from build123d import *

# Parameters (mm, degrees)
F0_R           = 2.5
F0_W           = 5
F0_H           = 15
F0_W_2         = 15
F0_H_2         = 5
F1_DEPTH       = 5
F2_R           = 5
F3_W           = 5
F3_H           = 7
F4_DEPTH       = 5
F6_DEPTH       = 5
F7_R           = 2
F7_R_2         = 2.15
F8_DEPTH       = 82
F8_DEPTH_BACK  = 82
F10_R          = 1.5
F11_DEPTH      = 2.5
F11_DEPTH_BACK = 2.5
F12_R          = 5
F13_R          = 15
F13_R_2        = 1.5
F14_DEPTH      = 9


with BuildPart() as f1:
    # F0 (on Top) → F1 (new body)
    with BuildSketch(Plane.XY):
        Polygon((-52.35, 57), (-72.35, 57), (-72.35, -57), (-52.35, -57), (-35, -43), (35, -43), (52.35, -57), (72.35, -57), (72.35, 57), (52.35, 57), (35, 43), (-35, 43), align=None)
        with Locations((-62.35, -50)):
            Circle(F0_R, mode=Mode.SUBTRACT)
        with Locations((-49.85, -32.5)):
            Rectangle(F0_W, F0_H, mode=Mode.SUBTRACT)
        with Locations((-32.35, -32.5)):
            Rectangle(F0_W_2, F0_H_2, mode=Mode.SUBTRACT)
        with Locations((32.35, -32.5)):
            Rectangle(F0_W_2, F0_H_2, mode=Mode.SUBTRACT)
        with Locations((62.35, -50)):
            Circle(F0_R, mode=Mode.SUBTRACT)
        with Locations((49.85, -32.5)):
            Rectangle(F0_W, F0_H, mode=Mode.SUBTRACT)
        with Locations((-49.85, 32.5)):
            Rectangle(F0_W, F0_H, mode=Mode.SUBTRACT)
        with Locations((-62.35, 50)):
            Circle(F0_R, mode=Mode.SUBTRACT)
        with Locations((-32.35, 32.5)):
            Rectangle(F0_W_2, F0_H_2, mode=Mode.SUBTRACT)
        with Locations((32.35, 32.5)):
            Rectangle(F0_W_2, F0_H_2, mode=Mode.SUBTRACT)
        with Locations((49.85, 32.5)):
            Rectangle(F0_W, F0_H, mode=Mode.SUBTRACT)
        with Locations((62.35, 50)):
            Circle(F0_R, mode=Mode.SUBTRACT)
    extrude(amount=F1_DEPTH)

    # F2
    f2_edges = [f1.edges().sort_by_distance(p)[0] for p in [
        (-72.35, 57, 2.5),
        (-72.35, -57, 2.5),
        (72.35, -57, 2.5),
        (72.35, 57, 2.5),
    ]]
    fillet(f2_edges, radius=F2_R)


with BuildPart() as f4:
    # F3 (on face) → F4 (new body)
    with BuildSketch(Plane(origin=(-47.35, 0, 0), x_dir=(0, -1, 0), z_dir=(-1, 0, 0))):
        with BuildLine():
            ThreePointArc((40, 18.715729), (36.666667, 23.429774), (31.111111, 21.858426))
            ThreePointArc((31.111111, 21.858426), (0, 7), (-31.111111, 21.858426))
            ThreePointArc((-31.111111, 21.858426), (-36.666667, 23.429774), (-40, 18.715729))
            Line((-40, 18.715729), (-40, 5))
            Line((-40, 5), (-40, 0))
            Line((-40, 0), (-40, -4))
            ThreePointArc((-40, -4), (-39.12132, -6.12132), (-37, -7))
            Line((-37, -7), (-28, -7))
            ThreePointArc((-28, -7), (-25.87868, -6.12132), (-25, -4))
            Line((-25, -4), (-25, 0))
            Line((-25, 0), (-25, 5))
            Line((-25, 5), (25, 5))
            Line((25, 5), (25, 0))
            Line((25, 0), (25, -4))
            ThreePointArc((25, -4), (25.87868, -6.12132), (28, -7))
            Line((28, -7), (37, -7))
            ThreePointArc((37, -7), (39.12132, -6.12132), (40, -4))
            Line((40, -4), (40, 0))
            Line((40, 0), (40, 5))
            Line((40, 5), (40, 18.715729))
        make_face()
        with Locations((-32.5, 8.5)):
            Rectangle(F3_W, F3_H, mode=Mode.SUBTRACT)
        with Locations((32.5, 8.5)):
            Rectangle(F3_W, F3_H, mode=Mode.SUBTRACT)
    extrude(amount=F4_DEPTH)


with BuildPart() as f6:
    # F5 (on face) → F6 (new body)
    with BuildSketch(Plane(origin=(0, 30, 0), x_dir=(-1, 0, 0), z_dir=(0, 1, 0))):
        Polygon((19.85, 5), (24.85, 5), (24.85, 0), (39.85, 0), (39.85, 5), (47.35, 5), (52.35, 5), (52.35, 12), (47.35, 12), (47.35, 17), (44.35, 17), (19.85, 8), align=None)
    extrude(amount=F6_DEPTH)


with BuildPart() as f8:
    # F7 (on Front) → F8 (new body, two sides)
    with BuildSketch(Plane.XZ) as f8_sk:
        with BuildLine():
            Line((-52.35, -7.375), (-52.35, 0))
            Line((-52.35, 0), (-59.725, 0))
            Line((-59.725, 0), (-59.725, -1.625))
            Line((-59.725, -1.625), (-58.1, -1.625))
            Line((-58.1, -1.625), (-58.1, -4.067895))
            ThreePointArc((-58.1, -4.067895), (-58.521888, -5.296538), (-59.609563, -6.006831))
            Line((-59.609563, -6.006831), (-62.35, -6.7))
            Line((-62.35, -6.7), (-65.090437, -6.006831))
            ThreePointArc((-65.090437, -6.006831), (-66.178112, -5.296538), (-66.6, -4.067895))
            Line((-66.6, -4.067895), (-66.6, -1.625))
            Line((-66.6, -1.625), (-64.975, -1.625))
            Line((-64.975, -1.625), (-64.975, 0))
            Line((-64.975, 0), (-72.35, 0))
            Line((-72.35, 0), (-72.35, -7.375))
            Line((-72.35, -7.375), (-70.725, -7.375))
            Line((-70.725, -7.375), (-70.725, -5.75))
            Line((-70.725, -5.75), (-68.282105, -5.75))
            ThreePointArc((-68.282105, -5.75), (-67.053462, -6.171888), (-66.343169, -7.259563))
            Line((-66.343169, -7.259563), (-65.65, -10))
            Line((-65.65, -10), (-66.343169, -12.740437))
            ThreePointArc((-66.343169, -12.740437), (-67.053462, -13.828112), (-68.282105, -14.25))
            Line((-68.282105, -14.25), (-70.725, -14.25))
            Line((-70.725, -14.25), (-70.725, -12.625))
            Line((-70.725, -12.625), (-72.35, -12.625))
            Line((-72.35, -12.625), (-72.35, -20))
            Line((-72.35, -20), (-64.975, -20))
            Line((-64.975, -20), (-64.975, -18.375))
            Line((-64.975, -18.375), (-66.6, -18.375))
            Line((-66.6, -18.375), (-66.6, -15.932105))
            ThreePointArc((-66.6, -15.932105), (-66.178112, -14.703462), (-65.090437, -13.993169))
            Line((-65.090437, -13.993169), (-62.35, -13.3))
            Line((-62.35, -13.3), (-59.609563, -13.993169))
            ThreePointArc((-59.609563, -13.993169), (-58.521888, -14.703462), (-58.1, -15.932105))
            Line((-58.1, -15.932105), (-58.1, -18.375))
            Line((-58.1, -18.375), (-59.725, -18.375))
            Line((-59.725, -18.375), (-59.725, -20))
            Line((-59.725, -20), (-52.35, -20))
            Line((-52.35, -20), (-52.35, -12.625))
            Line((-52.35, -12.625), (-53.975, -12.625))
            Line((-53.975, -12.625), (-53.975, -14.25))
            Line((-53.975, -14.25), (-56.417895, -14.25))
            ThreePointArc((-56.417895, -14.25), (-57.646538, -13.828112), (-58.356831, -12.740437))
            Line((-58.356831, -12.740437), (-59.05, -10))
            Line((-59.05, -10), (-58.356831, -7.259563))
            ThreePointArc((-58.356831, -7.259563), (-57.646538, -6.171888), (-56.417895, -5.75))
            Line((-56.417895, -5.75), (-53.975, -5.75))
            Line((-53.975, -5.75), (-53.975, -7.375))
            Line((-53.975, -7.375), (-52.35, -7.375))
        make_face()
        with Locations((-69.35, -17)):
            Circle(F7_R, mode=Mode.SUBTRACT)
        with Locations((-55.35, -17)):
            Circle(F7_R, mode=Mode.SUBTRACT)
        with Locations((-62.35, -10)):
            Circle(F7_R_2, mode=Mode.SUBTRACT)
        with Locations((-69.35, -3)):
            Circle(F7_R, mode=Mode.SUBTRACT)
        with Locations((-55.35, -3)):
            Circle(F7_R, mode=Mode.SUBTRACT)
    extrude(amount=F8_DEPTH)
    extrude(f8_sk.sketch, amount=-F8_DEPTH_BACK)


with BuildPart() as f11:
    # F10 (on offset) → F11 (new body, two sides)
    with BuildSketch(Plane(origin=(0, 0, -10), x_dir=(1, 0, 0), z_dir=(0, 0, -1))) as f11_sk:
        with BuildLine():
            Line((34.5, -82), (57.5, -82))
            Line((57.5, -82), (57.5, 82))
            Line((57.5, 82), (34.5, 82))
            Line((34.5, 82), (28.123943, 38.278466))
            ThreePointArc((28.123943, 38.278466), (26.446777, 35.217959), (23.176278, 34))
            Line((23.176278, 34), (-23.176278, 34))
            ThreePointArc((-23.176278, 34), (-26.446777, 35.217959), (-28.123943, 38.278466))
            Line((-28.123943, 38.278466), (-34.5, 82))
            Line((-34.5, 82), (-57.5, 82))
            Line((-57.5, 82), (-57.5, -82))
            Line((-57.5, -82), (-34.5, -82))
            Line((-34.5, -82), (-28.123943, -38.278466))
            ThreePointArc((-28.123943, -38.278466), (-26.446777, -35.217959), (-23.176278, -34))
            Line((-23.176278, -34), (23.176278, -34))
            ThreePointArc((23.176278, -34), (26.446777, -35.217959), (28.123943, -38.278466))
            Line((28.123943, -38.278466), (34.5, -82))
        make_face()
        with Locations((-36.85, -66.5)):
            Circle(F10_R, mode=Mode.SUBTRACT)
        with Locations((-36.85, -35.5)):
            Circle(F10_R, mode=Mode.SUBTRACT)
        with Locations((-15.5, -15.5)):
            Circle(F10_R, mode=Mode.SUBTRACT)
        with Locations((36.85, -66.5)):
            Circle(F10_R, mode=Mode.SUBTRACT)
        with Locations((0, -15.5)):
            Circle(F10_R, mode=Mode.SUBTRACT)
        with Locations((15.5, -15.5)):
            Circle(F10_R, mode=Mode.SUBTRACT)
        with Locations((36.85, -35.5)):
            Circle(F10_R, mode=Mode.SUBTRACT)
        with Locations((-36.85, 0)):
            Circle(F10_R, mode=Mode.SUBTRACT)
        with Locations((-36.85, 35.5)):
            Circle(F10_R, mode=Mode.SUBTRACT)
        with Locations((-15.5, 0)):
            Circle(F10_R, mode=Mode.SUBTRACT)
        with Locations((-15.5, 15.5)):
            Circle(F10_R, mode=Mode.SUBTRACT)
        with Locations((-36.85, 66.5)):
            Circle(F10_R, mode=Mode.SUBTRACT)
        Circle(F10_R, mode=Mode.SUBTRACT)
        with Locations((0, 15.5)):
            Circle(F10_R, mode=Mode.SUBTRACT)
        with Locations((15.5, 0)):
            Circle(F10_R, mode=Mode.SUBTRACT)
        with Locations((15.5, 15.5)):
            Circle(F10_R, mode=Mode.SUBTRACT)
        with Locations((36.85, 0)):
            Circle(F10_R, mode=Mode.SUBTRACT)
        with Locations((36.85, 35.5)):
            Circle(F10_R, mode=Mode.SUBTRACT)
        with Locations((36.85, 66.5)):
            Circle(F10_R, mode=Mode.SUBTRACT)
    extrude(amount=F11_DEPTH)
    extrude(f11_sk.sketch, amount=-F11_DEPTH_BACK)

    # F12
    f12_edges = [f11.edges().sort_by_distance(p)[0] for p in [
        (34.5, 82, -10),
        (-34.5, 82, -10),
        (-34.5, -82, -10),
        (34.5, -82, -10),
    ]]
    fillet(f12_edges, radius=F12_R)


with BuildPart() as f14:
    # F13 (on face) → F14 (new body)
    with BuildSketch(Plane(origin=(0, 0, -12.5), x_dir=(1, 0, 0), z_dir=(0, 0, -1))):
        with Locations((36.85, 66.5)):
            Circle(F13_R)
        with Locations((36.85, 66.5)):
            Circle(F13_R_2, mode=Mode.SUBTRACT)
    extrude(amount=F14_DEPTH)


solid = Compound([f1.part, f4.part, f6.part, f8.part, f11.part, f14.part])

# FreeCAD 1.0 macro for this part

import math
import FreeCAD as App
import Part
import Sketcher

V = App.Vector
Q = App.Units.Quantity


def edges_at(feature, points):
    """Names of the edges that pass closest to the given points."""
    edges = feature.Shape.Edges
    near = lambda p: min(range(len(edges)), key=lambda i: edges[i].distToShape(Part.Vertex(*p))[0])
    return sorted({f"Edge{near(p) + 1}" for p in points})


def add_polygon(sketch, points):
    """Adds a closed chain of lines whose ends are joined by coincident constraints."""
    first, n = sketch.GeometryCount, len(points)
    for a, b in zip(points, points[1:] + points[:1]):
        sketch.addGeometry(Part.LineSegment(App.Vector(*a, 0), App.Vector(*b, 0)), False)
    for i in range(n):
        sketch.addConstraint(Sketcher.Constraint("Coincident", first + i, 2, first + (i + 1) % n, 1))

doc = App.newDocument("Part")
body = doc.addObject("PartDesign::Body", "Body")

sketch1 = body.newObject("Sketcher::SketchObject", "Sketch")
sketch1.AttachmentSupport = (doc.getObject("XY_Plane"), [""])
sketch1.MapMode = "FlatFace"
add_polygon(sketch1, [(-52.4, 57), (-72.3, 57), (-72.3, -57), (-52.4, -57), (-35, -43), (35, -43), (52.4, -57), (72.3, -57), (72.3, 57), (52.4, 57), (35, 43), (-35, 43)])
sketch1.addGeometry(Part.Circle(V(-62.4, -50, 0), V(0, 0, 1), 2.5), False)
add_polygon(sketch1, [(-47.4, -40), (-52.4, -40), (-52.4, -25), (-47.4, -25)])
add_polygon(sketch1, [(-24.9, -35), (-39.9, -35), (-39.9, -30), (-24.9, -30)])
add_polygon(sketch1, [(39.9, -35), (24.9, -35), (24.9, -30), (39.9, -30)])
sketch1.addGeometry(Part.Circle(V(62.4, -50, 0), V(0, 0, 1), 2.5), False)
add_polygon(sketch1, [(52.4, -40), (47.4, -40), (47.4, -25), (52.4, -25)])
add_polygon(sketch1, [(-47.4, 25), (-52.4, 25), (-52.4, 40), (-47.4, 40)])
sketch1.addGeometry(Part.Circle(V(-62.4, 50, 0), V(0, 0, 1), 2.5), False)
add_polygon(sketch1, [(-24.9, 30), (-39.9, 30), (-39.9, 35), (-24.9, 35)])
add_polygon(sketch1, [(39.9, 30), (24.9, 30), (24.9, 35), (39.9, 35)])
add_polygon(sketch1, [(52.4, 25), (47.4, 25), (47.4, 40), (52.4, 40)])
sketch1.addGeometry(Part.Circle(V(62.4, 50, 0), V(0, 0, 1), 2.5), False)
sketch1.addConstraint([
    Sketcher.Constraint("Horizontal", 0),
    Sketcher.Constraint("Vertical", 1),
    Sketcher.Constraint("Horizontal", 2),
    Sketcher.Constraint("Horizontal", 4),
    Sketcher.Constraint("Horizontal", 6),
    Sketcher.Constraint("Vertical", 7),
    Sketcher.Constraint("Horizontal", 8),
    Sketcher.Constraint("Horizontal", 10),
    Sketcher.Constraint("Horizontal", 13),
    Sketcher.Constraint("Vertical", 14),
    Sketcher.Constraint("Horizontal", 15),
    Sketcher.Constraint("Vertical", 16),
    Sketcher.Constraint("Horizontal", 17),
    Sketcher.Constraint("Vertical", 18),
    Sketcher.Constraint("Horizontal", 19),
    Sketcher.Constraint("Vertical", 20),
    Sketcher.Constraint("Horizontal", 21),
    Sketcher.Constraint("Vertical", 22),
    Sketcher.Constraint("Horizontal", 23),
    Sketcher.Constraint("Vertical", 24),
    Sketcher.Constraint("Horizontal", 26),
    Sketcher.Constraint("Vertical", 27),
    Sketcher.Constraint("Horizontal", 28),
    Sketcher.Constraint("Vertical", 29),
    Sketcher.Constraint("Horizontal", 30),
    Sketcher.Constraint("Vertical", 31),
    Sketcher.Constraint("Horizontal", 32),
    Sketcher.Constraint("Vertical", 33),
    Sketcher.Constraint("Horizontal", 35),
    Sketcher.Constraint("Vertical", 36),
    Sketcher.Constraint("Horizontal", 37),
    Sketcher.Constraint("Vertical", 38),
    Sketcher.Constraint("Horizontal", 39),
    Sketcher.Constraint("Vertical", 40),
    Sketcher.Constraint("Horizontal", 41),
    Sketcher.Constraint("Vertical", 42),
    Sketcher.Constraint("Horizontal", 43),
    Sketcher.Constraint("Vertical", 44),
    Sketcher.Constraint("Horizontal", 45),
    Sketcher.Constraint("Vertical", 46),
    Sketcher.Constraint("Equal", 12, 25),
    Sketcher.Constraint("Equal", 25, 34),
    Sketcher.Constraint("Equal", 34, 47),
    Sketcher.Constraint("Symmetric", 25, 3, 34, 3, -1, 1),
    Sketcher.Constraint("Symmetric", 12, 3, 47, 3, -1, 1),
    Sketcher.Constraint("Symmetric", 0, 2, 6, 2, -1, 1),
    Sketcher.Constraint("Symmetric", 2, 2, 8, 2, -1, 1),
    Sketcher.Constraint("Symmetric", 3, 2, 9, 2, -1, 1),
    Sketcher.Constraint("Symmetric", 28, 2, 30, 2, -1, 1),
    Sketcher.Constraint("Symmetric", 26, 2, 32, 2, -1, 1),
    Sketcher.Constraint("Symmetric", 23, 2, 35, 2, -1, 1),
    Sketcher.Constraint("Symmetric", 21, 2, 37, 2, -1, 1),
    Sketcher.Constraint("Symmetric", 19, 2, 39, 2, -1, 1),
    Sketcher.Constraint("Symmetric", 17, 2, 41, 2, -1, 1),
    Sketcher.Constraint("Symmetric", 15, 2, 43, 2, -1, 1),
    Sketcher.Constraint("Symmetric", 13, 2, 45, 2, -1, 1),
    Sketcher.Constraint("Symmetric", 12, 3, 25, 3, -2),
    Sketcher.Constraint("Symmetric", 2, 2, 5, 2, -2),
    Sketcher.Constraint("Symmetric", 20, 2, 21, 2, -2),
    Sketcher.Constraint("Symmetric", 18, 2, 23, 2, -2),
    Sketcher.Constraint("Symmetric", 16, 2, 26, 2, -2),
    Sketcher.Constraint("Symmetric", 14, 2, 28, 2, -2),
    Sketcher.Constraint("Parallel", 5, 11),
    Sketcher.Constraint("Vertical", 4, 2, 9, 2),
    Sketcher.Constraint("Vertical", 3, 2, 10, 2),
    Sketcher.Constraint("Vertical", 11, 2, 13, 2),
    Sketcher.Constraint("Equal", 41, 14),
    Sketcher.Constraint("Equal", 45, 18),
    Sketcher.Constraint("Diameter", 12, Q("5 mm")),
    Sketcher.Constraint("DistanceX", 0, 2, 0, 1, Q("20 mm")),
    Sketcher.Constraint("DistanceX", 4, 1, 4, 2, Q("70 mm")),
    Sketcher.Constraint("DistanceX", 13, 2, 13, 1, Q("5 mm")),
    Sketcher.Constraint("DistanceX", 17, 2, 17, 1, Q("15 mm")),
    Sketcher.Constraint("DistanceY", 1, 2, 1, 1, Q("114 mm")),
    Sketcher.Constraint("DistanceY", 12, 3, -1, 1, Q("50 mm")),
    Sketcher.Constraint("DistanceY", 3, 2, -1, 1, Q("43 mm")),
    Sketcher.Constraint("DistanceY", 13, 2, -1, 1, Q("40 mm")),
    Sketcher.Constraint("DistanceY", 17, 2, -1, 1, Q("35 mm")),
    Sketcher.Constraint("DistanceX", 0, 2, 34, 3, Q("10 mm")),
    Sketcher.Constraint("DistanceX", 12, 3, 25, 3, Q("124.7 mm")),
    Sketcher.Constraint("DistanceX", 16, 2, 17, 2, Q("7.5 mm")),
])
pad1 = body.newObject("PartDesign::Pad", "Pad")
pad1.Profile = sketch1
pad1.Length = 5
doc.recompute()

fillet = body.newObject("PartDesign::Fillet", "Fillet")
fillet.Base = (pad1, edges_at(pad1, [
    (-72.35, 57, 2.5),
    (-72.35, -57, 2.5),
    (72.35, -57, 2.5),
    (72.35, 57, 2.5),
]))
fillet.Radius = 5
body2 = doc.addObject("PartDesign::Body", "Body001")

sketch2 = body2.newObject("Sketcher::SketchObject", "Sketch001")
sketch2.AttachmentSupport = (doc.getObject("YZ_Plane001"), [""])
sketch2.MapMode = "FlatFace"
sketch2.AttachmentOffset = App.Placement(V(0, 0, -47.35), App.Rotation())
sketch2.addGeometry(Part.ArcOfCircle(Part.Circle(V(-35, 18.7, 0), V(0, 0, 1), 5), math.radians(39), math.radians(180)), False)
sketch2.addGeometry(Part.ArcOfCircle(Part.Circle(V(0, 47, 0), V(0, 0, 1), 40), math.radians(-141), math.radians(-39)), False)
sketch2.addGeometry(Part.ArcOfCircle(Part.Circle(V(35, 18.7, 0), V(0, 0, 1), 5), math.radians(0), math.radians(141)), False)
sketch2.addGeometry(Part.LineSegment(V(40, 18.7, 0), V(40, -4, 0)), False)
sketch2.addGeometry(Part.ArcOfCircle(Part.Circle(V(37, -4, 0), V(0, 0, 1), 3), math.radians(-90), math.radians(0)), False)
sketch2.addGeometry(Part.LineSegment(V(37, -7, 0), V(28, -7, 0)), False)
sketch2.addGeometry(Part.ArcOfCircle(Part.Circle(V(28, -4, 0), V(0, 0, 1), 3), math.radians(-180), math.radians(-90)), False)
sketch2.addGeometry(Part.LineSegment(V(25, -4, 0), V(25, 5, 0)), False)
sketch2.addGeometry(Part.LineSegment(V(25, 5, 0), V(-25, 5, 0)), False)
sketch2.addGeometry(Part.LineSegment(V(-25, 5, 0), V(-25, -4, 0)), False)
sketch2.addGeometry(Part.ArcOfCircle(Part.Circle(V(-28, -4, 0), V(0, 0, 1), 3), math.radians(-90), math.radians(0)), False)
sketch2.addGeometry(Part.LineSegment(V(-28, -7, 0), V(-37, -7, 0)), False)
sketch2.addGeometry(Part.ArcOfCircle(Part.Circle(V(-37, -4, 0), V(0, 0, 1), 3), math.radians(-180), math.radians(-90)), False)
sketch2.addGeometry(Part.LineSegment(V(-40, -4, 0), V(-40, 18.7, 0)), False)
add_polygon(sketch2, [(30, 5), (35, 5), (35, 12), (30, 12)])
add_polygon(sketch2, [(-35, 5), (-30, 5), (-30, 12), (-35, 12)])
sketch2.addConstraint([
    Sketcher.Constraint("Tangent", 0, 1, 1, 1),
    Sketcher.Constraint("Tangent", 1, 2, 2, 2),
    Sketcher.Constraint("Tangent", 2, 1, 3, 1),
    Sketcher.Constraint("Tangent", 3, 2, 4, 2),
    Sketcher.Constraint("Tangent", 4, 1, 5, 1),
    Sketcher.Constraint("Tangent", 5, 2, 6, 2),
    Sketcher.Constraint("Tangent", 6, 1, 7, 1),
    Sketcher.Constraint("Coincident", 7, 2, 8, 1),
    Sketcher.Constraint("Coincident", 8, 2, 9, 1),
    Sketcher.Constraint("Tangent", 9, 2, 10, 2),
    Sketcher.Constraint("Tangent", 10, 1, 11, 1),
    Sketcher.Constraint("Tangent", 11, 2, 12, 2),
    Sketcher.Constraint("Tangent", 12, 1, 13, 1),
    Sketcher.Constraint("Tangent", 13, 2, 0, 2),
    Sketcher.Constraint("Vertical", 3),
    Sketcher.Constraint("Horizontal", 5),
    Sketcher.Constraint("Vertical", 7),
    Sketcher.Constraint("Horizontal", 8),
    Sketcher.Constraint("Vertical", 9),
    Sketcher.Constraint("Horizontal", 11),
    Sketcher.Constraint("Vertical", 13),
    Sketcher.Constraint("Horizontal", 14),
    Sketcher.Constraint("Vertical", 15),
    Sketcher.Constraint("Horizontal", 16),
    Sketcher.Constraint("Vertical", 17),
    Sketcher.Constraint("Horizontal", 18),
    Sketcher.Constraint("Vertical", 19),
    Sketcher.Constraint("Horizontal", 20),
    Sketcher.Constraint("Vertical", 21),
    Sketcher.Constraint("Equal", 0, 2),
    Sketcher.Constraint("Equal", 4, 6),
    Sketcher.Constraint("Equal", 6, 10),
    Sketcher.Constraint("Equal", 10, 12),
    Sketcher.Constraint("Symmetric", 0, 3, 2, 3, -2),
    Sketcher.Constraint("Symmetric", 6, 3, 10, 3, -2),
    Sketcher.Constraint("Symmetric", 17, 2, 18, 2, -2),
    Sketcher.Constraint("Symmetric", 15, 2, 20, 2, -2),
    Sketcher.Constraint("Horizontal", 8, 2, 14, 2),
    Sketcher.Constraint("Vertical", 2, 3, 14, 2),
    Sketcher.Constraint("Equal", 11, 7),
    Sketcher.Constraint("Radius", 0, Q("5 mm")),
    Sketcher.Constraint("Radius", 1, Q("39.999999 mm")),
    Sketcher.Constraint("Radius", 4, Q("3.000001 mm")),
    Sketcher.Constraint("DistanceX", 5, 2, 5, 1, Q("9 mm")),
    Sketcher.Constraint("DistanceX", 8, 2, 8, 1, Q("50 mm")),
    Sketcher.Constraint("DistanceX", 14, 1, 14, 2, Q("5 mm")),
    Sketcher.Constraint("DistanceY", 15, 1, 15, 2, Q("7 mm")),
    Sketcher.Constraint("DistanceY", -1, 1, 1, 3, Q("46.999999 mm")),
    Sketcher.Constraint("DistanceY", 4, 3, -1, 1, Q("3.999999 mm")),
])
pad2 = body2.newObject("PartDesign::Pad", "Pad001")
pad2.Profile = sketch2
pad2.Length = 5
pad2.Reversed = True
body3 = doc.addObject("PartDesign::Body", "Body002")

sketch3 = body3.newObject("Sketcher::SketchObject", "Sketch002")
sketch3.AttachmentSupport = (doc.getObject("XZ_Plane002"), [""])
sketch3.MapMode = "FlatFace"
sketch3.AttachmentOffset = App.Placement(V(0, 0, -30), App.Rotation())
add_polygon(sketch3, [(-19.9, 5), (-24.9, 5), (-24.9, 0), (-39.9, 0), (-39.9, 5), (-52.4, 5), (-52.4, 12), (-47.4, 12), (-47.4, 17), (-44.4, 17), (-19.9, 8)])
sketch3.addConstraint([
    Sketcher.Constraint("Horizontal", 0),
    Sketcher.Constraint("Vertical", 1),
    Sketcher.Constraint("Horizontal", 2),
    Sketcher.Constraint("Vertical", 3),
    Sketcher.Constraint("Horizontal", 4),
    Sketcher.Constraint("Vertical", 5),
    Sketcher.Constraint("Horizontal", 6),
    Sketcher.Constraint("Vertical", 7),
    Sketcher.Constraint("Horizontal", 8),
    Sketcher.Constraint("Vertical", 10),
    Sketcher.Constraint("PointOnObject", 1, 2, -1),
    Sketcher.Constraint("Horizontal", 0, 2, 3, 2),
    Sketcher.Constraint("Equal", 0, 6),
    Sketcher.Constraint("Equal", 6, 1),
    Sketcher.Constraint("Equal", 3, 7),
    Sketcher.Constraint("Equal", 8, 10),
    Sketcher.Constraint("DistanceX", 0, 2, 0, 1, Q("5 mm")),
    Sketcher.Constraint("DistanceX", 2, 2, 2, 1, Q("15 mm")),
    Sketcher.Constraint("DistanceX", 8, 1, 8, 2, Q("3 mm")),
    Sketcher.Constraint("DistanceY", 5, 1, 5, 2, Q("7 mm")),
    Sketcher.Constraint("DistanceX", 4, 2, 4, 1, Q("12.5 mm")),
    Sketcher.Constraint("DistanceX", 0, 2, -1, 1, Q("24.85 mm")),
])
pad3 = body3.newObject("PartDesign::Pad", "Pad002")
pad3.Profile = sketch3
pad3.Length = 5
pad3.Reversed = True
body4 = doc.addObject("PartDesign::Body", "Body003")

sketch4 = body4.newObject("Sketcher::SketchObject", "Sketch003")
sketch4.AttachmentSupport = (doc.getObject("XZ_Plane003"), [""])
sketch4.MapMode = "FlatFace"
sketch4.addGeometry([
    Part.LineSegment(V(-52.4, -7.4, 0), V(-52.4, 0, 0)),
    Part.LineSegment(V(-52.4, 0, 0), V(-59.7, 0, 0)),
    Part.LineSegment(V(-59.7, 0, 0), V(-59.7, -1.6, 0)),
    Part.LineSegment(V(-59.7, -1.6, 0), V(-58.1, -1.6, 0)),
    Part.LineSegment(V(-58.1, -1.6, 0), V(-58.1, -4.1, 0)),
    Part.ArcOfCircle(Part.Circle(V(-60.1, -4.1, 0), V(0, 0, 1), 2), math.radians(-76), math.radians(0)),
    Part.LineSegment(V(-59.6, -6, 0), V(-62.4, -6.7, 0)),
    Part.LineSegment(V(-62.4, -6.7, 0), V(-65.1, -6, 0)),
    Part.ArcOfCircle(Part.Circle(V(-64.6, -4.1, 0), V(0, 0, 1), 2), math.radians(180), math.radians(256)),
    Part.LineSegment(V(-66.6, -4.1, 0), V(-66.6, -1.6, 0)),
    Part.LineSegment(V(-66.6, -1.6, 0), V(-65, -1.6, 0)),
    Part.LineSegment(V(-65, -1.6, 0), V(-65, 0, 0)),
    Part.LineSegment(V(-65, 0, 0), V(-72.3, 0, 0)),
    Part.LineSegment(V(-72.3, 0, 0), V(-72.3, -7.4, 0)),
    Part.LineSegment(V(-72.3, -7.4, 0), V(-70.7, -7.4, 0)),
    Part.LineSegment(V(-70.7, -7.4, 0), V(-70.7, -5.8, 0)),
    Part.LineSegment(V(-70.7, -5.8, 0), V(-68.3, -5.8, 0)),
    Part.ArcOfCircle(Part.Circle(V(-68.3, -7.7, 0), V(0, 0, 1), 2), math.radians(14), math.radians(90)),
    Part.LineSegment(V(-66.3, -7.3, 0), V(-65.7, -10, 0)),
    Part.LineSegment(V(-65.7, -10, 0), V(-66.3, -12.7, 0)),
    Part.ArcOfCircle(Part.Circle(V(-68.3, -12.3, 0), V(0, 0, 1), 2), math.radians(-90), math.radians(-14)),
    Part.LineSegment(V(-68.3, -14.2, 0), V(-70.7, -14.2, 0)),
    Part.LineSegment(V(-70.7, -14.2, 0), V(-70.7, -12.6, 0)),
    Part.LineSegment(V(-70.7, -12.6, 0), V(-72.3, -12.6, 0)),
    Part.LineSegment(V(-72.3, -12.6, 0), V(-72.3, -20, 0)),
    Part.LineSegment(V(-72.3, -20, 0), V(-65, -20, 0)),
    Part.LineSegment(V(-65, -20, 0), V(-65, -18.4, 0)),
    Part.LineSegment(V(-65, -18.4, 0), V(-66.6, -18.4, 0)),
    Part.LineSegment(V(-66.6, -18.4, 0), V(-66.6, -15.9, 0)),
    Part.ArcOfCircle(Part.Circle(V(-64.6, -15.9, 0), V(0, 0, 1), 2), math.radians(104), math.radians(180)),
    Part.LineSegment(V(-65.1, -14, 0), V(-62.4, -13.3, 0)),
    Part.LineSegment(V(-62.4, -13.3, 0), V(-59.6, -14, 0)),
    Part.ArcOfCircle(Part.Circle(V(-60.1, -15.9, 0), V(0, 0, 1), 2), math.radians(0), math.radians(76)),
    Part.LineSegment(V(-58.1, -15.9, 0), V(-58.1, -18.4, 0)),
    Part.LineSegment(V(-58.1, -18.4, 0), V(-59.7, -18.4, 0)),
    Part.LineSegment(V(-59.7, -18.4, 0), V(-59.7, -20, 0)),
    Part.LineSegment(V(-59.7, -20, 0), V(-52.4, -20, 0)),
    Part.LineSegment(V(-52.4, -20, 0), V(-52.4, -12.6, 0)),
    Part.LineSegment(V(-52.4, -12.6, 0), V(-54, -12.6, 0)),
    Part.LineSegment(V(-54, -12.6, 0), V(-54, -14.2, 0)),
    Part.LineSegment(V(-54, -14.2, 0), V(-56.4, -14.2, 0)),
    Part.ArcOfCircle(Part.Circle(V(-56.4, -12.3, 0), V(0, 0, 1), 2), math.radians(-166), math.radians(-90)),
    Part.LineSegment(V(-58.4, -12.7, 0), V(-59, -10, 0)),
    Part.LineSegment(V(-59, -10, 0), V(-58.4, -7.3, 0)),
    Part.ArcOfCircle(Part.Circle(V(-56.4, -7.7, 0), V(0, 0, 1), 2), math.radians(90), math.radians(166)),
    Part.LineSegment(V(-56.4, -5.8, 0), V(-54, -5.8, 0)),
    Part.LineSegment(V(-54, -5.8, 0), V(-54, -7.4, 0)),
    Part.LineSegment(V(-54, -7.4, 0), V(-52.4, -7.4, 0)),
    Part.Circle(V(-69.3, -17, 0), V(0, 0, 1), 2),
    Part.Circle(V(-55.4, -17, 0), V(0, 0, 1), 2),
    Part.Circle(V(-62.4, -10, 0), V(0, 0, 1), 2.1),
    Part.Circle(V(-69.3, -3, 0), V(0, 0, 1), 2),
    Part.Circle(V(-55.4, -3, 0), V(0, 0, 1), 2),
], False)
sketch4.addConstraint([
    Sketcher.Constraint("Coincident", 0, 2, 1, 1),
    Sketcher.Constraint("Coincident", 1, 2, 2, 1),
    Sketcher.Constraint("Coincident", 2, 2, 3, 1),
    Sketcher.Constraint("Coincident", 3, 2, 4, 1),
    Sketcher.Constraint("Tangent", 4, 2, 5, 2),
    Sketcher.Constraint("Tangent", 5, 1, 6, 1),
    Sketcher.Constraint("Coincident", 6, 2, 7, 1),
    Sketcher.Constraint("Tangent", 7, 2, 8, 2),
    Sketcher.Constraint("Tangent", 8, 1, 9, 1),
    Sketcher.Constraint("Coincident", 9, 2, 10, 1),
    Sketcher.Constraint("Coincident", 10, 2, 11, 1),
    Sketcher.Constraint("Coincident", 11, 2, 12, 1),
    Sketcher.Constraint("Coincident", 12, 2, 13, 1),
    Sketcher.Constraint("Coincident", 13, 2, 14, 1),
    Sketcher.Constraint("Coincident", 14, 2, 15, 1),
    Sketcher.Constraint("Coincident", 15, 2, 16, 1),
    Sketcher.Constraint("Tangent", 16, 2, 17, 2),
    Sketcher.Constraint("Tangent", 17, 1, 18, 1),
    Sketcher.Constraint("Coincident", 18, 2, 19, 1),
    Sketcher.Constraint("Tangent", 19, 2, 20, 2),
    Sketcher.Constraint("Tangent", 20, 1, 21, 1),
    Sketcher.Constraint("Coincident", 21, 2, 22, 1),
    Sketcher.Constraint("Coincident", 22, 2, 23, 1),
    Sketcher.Constraint("Coincident", 23, 2, 24, 1),
    Sketcher.Constraint("Coincident", 24, 2, 25, 1),
    Sketcher.Constraint("Coincident", 25, 2, 26, 1),
    Sketcher.Constraint("Coincident", 26, 2, 27, 1),
    Sketcher.Constraint("Coincident", 27, 2, 28, 1),
    Sketcher.Constraint("Tangent", 28, 2, 29, 2),
    Sketcher.Constraint("Tangent", 29, 1, 30, 1),
    Sketcher.Constraint("Coincident", 30, 2, 31, 1),
    Sketcher.Constraint("Tangent", 31, 2, 32, 2),
    Sketcher.Constraint("Tangent", 32, 1, 33, 1),
    Sketcher.Constraint("Coincident", 33, 2, 34, 1),
    Sketcher.Constraint("Coincident", 34, 2, 35, 1),
    Sketcher.Constraint("Coincident", 35, 2, 36, 1),
    Sketcher.Constraint("Coincident", 36, 2, 37, 1),
    Sketcher.Constraint("Coincident", 37, 2, 38, 1),
    Sketcher.Constraint("Coincident", 38, 2, 39, 1),
    Sketcher.Constraint("Coincident", 39, 2, 40, 1),
    Sketcher.Constraint("Tangent", 40, 2, 41, 2),
    Sketcher.Constraint("Tangent", 41, 1, 42, 1),
    Sketcher.Constraint("Coincident", 42, 2, 43, 1),
    Sketcher.Constraint("Tangent", 43, 2, 44, 2),
    Sketcher.Constraint("Tangent", 44, 1, 45, 1),
    Sketcher.Constraint("Coincident", 45, 2, 46, 1),
    Sketcher.Constraint("Coincident", 46, 2, 47, 1),
    Sketcher.Constraint("Coincident", 47, 2, 0, 1),
    Sketcher.Constraint("Vertical", 0),
    Sketcher.Constraint("Horizontal", 1),
    Sketcher.Constraint("Vertical", 2),
    Sketcher.Constraint("Horizontal", 3),
    Sketcher.Constraint("Vertical", 4),
    Sketcher.Constraint("Vertical", 9),
    Sketcher.Constraint("Horizontal", 10),
    Sketcher.Constraint("Vertical", 11),
    Sketcher.Constraint("Horizontal", 12),
    Sketcher.Constraint("Vertical", 13),
    Sketcher.Constraint("Horizontal", 14),
    Sketcher.Constraint("Vertical", 15),
    Sketcher.Constraint("Horizontal", 16),
    Sketcher.Constraint("Horizontal", 21),
    Sketcher.Constraint("Vertical", 22),
    Sketcher.Constraint("Horizontal", 23),
    Sketcher.Constraint("Vertical", 24),
    Sketcher.Constraint("Horizontal", 25),
    Sketcher.Constraint("Vertical", 26),
    Sketcher.Constraint("Horizontal", 27),
    Sketcher.Constraint("Vertical", 28),
    Sketcher.Constraint("Vertical", 33),
    Sketcher.Constraint("Horizontal", 34),
    Sketcher.Constraint("Vertical", 35),
    Sketcher.Constraint("Horizontal", 36),
    Sketcher.Constraint("Vertical", 37),
    Sketcher.Constraint("Horizontal", 38),
    Sketcher.Constraint("Vertical", 39),
    Sketcher.Constraint("Horizontal", 40),
    Sketcher.Constraint("Horizontal", 45),
    Sketcher.Constraint("Vertical", 46),
    Sketcher.Constraint("Horizontal", 47),
    Sketcher.Constraint("Equal", 5, 8),
    Sketcher.Constraint("Equal", 8, 17),
    Sketcher.Constraint("Equal", 17, 20),
    Sketcher.Constraint("Equal", 20, 29),
    Sketcher.Constraint("Equal", 29, 32),
    Sketcher.Constraint("Equal", 32, 41),
    Sketcher.Constraint("Equal", 41, 44),
    Sketcher.Constraint("Equal", 44, 48),
    Sketcher.Constraint("Equal", 48, 49),
    Sketcher.Constraint("Equal", 49, 51),
    Sketcher.Constraint("Equal", 51, 52),
    Sketcher.Constraint("PointOnObject", 0, 2, -1),
    Sketcher.Constraint("PointOnObject", 11, 2, -1),
    Sketcher.Constraint("Perpendicular", 6, 18),
    Sketcher.Constraint("Perpendicular", 7, 19),
    Sketcher.Constraint("Perpendicular", 18, 30),
    Sketcher.Constraint("Perpendicular", 19, 31),
    Sketcher.Constraint("Perpendicular", 30, 42),
    Sketcher.Constraint("Perpendicular", 31, 43),
    Sketcher.Constraint("Horizontal", 5, 3, 8, 3),
    Sketcher.Constraint("Horizontal", 29, 3, 32, 3),
    Sketcher.Constraint("Horizontal", 20, 3, 41, 3),
    Sketcher.Constraint("Horizontal", 17, 3, 44, 3),
    Sketcher.Constraint("Horizontal", 48, 3, 49, 3),
    Sketcher.Constraint("Horizontal", 51, 3, 52, 3),
    Sketcher.Constraint("Horizontal", 5, 1, 7, 2),
    Sketcher.Constraint("Horizontal", 3, 2, 9, 2),
    Sketcher.Constraint("Horizontal", 50, 3, 18, 2),
    Sketcher.Constraint("Horizontal", 27, 2, 33, 2),
    Sketcher.Constraint("Horizontal", 25, 2, 35, 2),
    Sketcher.Constraint("Horizontal", 23, 2, 37, 2),
    Sketcher.Constraint("Horizontal", 18, 2, 42, 2),
    Sketcher.Constraint("Horizontal", 14, 2, 46, 2),
    Sketcher.Constraint("Vertical", 17, 3, 20, 3),
    Sketcher.Constraint("Vertical", 8, 3, 29, 3),
    Sketcher.Constraint("Vertical", 5, 3, 32, 3),
    Sketcher.Constraint("Vertical", 48, 3, 51, 3),
    Sketcher.Constraint("Vertical", 49, 3, 52, 3),
    Sketcher.Constraint("Vertical", 50, 3, 6, 2),
    Sketcher.Constraint("Vertical", 15, 2, 21, 2),
    Sketcher.Constraint("Vertical", 13, 2, 23, 2),
    Sketcher.Constraint("Vertical", 11, 2, 25, 2),
    Sketcher.Constraint("Vertical", 2, 2, 34, 2),
    Sketcher.Constraint("Vertical", 0, 2, 36, 2),
    Sketcher.Constraint("Vertical", 39, 2, 45, 2),
    Sketcher.Constraint("Equal", 3, 10),
    Sketcher.Constraint("Equal", 1, 12),
    Sketcher.Constraint("Equal", 10, 14),
    Sketcher.Constraint("Equal", 34, 38),
    Sketcher.Constraint("Equal", 21, 40),
    Sketcher.Constraint("Equal", 36, 0),
    Sketcher.Constraint("Equal", 47, 2),
    Sketcher.Constraint("Equal", 45, 4),
    Sketcher.Constraint("Equal", 11, 15),
    Sketcher.Constraint("Equal", 15, 22),
    Sketcher.Constraint("Equal", 13, 24),
    Sketcher.Constraint("Equal", 22, 26),
    Sketcher.Constraint("Equal", 9, 28),
    Sketcher.Constraint("Equal", 7, 18),
    Sketcher.Constraint("Diameter", 48, Q("4 mm")),
    Sketcher.Constraint("Diameter", 50, Q("4.3 mm")),
    Sketcher.Constraint("DistanceY", 48, 3, -1, 1, Q("17 mm")),
    Sketcher.Constraint("DistanceY", 50, 3, -1, 1, Q("10 mm")),
    Sketcher.Constraint("DistanceY", 51, 3, -1, 1, Q("3 mm")),
    Sketcher.Constraint("DistanceX", 5, 3, -1, 1, Q("60.1 mm")),
    Sketcher.Constraint("DistanceX", 8, 3, -1, 1, Q("64.6 mm")),
    Sketcher.Constraint("DistanceY", 6, 2, -1, 1, Q("6.7 mm")),
    Sketcher.Constraint("DistanceX", 1, 2, 1, 1, Q("7.375 mm")),
    Sketcher.Constraint("DistanceX", 48, 3, -1, 1, Q("69.35 mm")),
    Sketcher.Constraint("DistanceX", 49, 3, -1, 1, Q("55.35 mm")),
    Sketcher.Constraint("DistanceX", 16, 1, 16, 2, Q("2.442895 mm")),
])
pad4 = body4.newObject("PartDesign::Pad", "Pad003")
pad4.Profile = sketch4
pad4.Type = "TwoLengths"
pad4.Length = 82
pad4.Length2 = 82
body5 = doc.addObject("PartDesign::Body", "Body004")

sketch5 = body5.newObject("Sketcher::SketchObject", "Sketch004")
sketch5.AttachmentSupport = (doc.getObject("XY_Plane004"), [""])
sketch5.MapMode = "FlatFace"
sketch5.AttachmentOffset = App.Placement(V(0, 0, -10), App.Rotation())
sketch5.addGeometry([
    Part.LineSegment(V(34.5, 82, 0), V(57.5, 82, 0)),
    Part.LineSegment(V(57.5, 82, 0), V(57.5, -82, 0)),
    Part.LineSegment(V(57.5, -82, 0), V(34.5, -82, 0)),
    Part.LineSegment(V(34.5, -82, 0), V(28.1, -38.3, 0)),
    Part.ArcOfCircle(Part.Circle(V(23.2, -39, 0), V(0, 0, 1), 5), math.radians(8), math.radians(90)),
    Part.LineSegment(V(23.2, -34, 0), V(-23.2, -34, 0)),
    Part.ArcOfCircle(Part.Circle(V(-23.2, -39, 0), V(0, 0, 1), 5), math.radians(90), math.radians(172)),
    Part.LineSegment(V(-28.1, -38.3, 0), V(-34.5, -82, 0)),
    Part.LineSegment(V(-34.5, -82, 0), V(-57.5, -82, 0)),
    Part.LineSegment(V(-57.5, -82, 0), V(-57.5, 82, 0)),
    Part.LineSegment(V(-57.5, 82, 0), V(-34.5, 82, 0)),
    Part.LineSegment(V(-34.5, 82, 0), V(-28.1, 38.3, 0)),
    Part.ArcOfCircle(Part.Circle(V(-23.2, 39, 0), V(0, 0, 1), 5), math.radians(-172), math.radians(-90)),
    Part.LineSegment(V(-23.2, 34, 0), V(23.2, 34, 0)),
    Part.ArcOfCircle(Part.Circle(V(23.2, 39, 0), V(0, 0, 1), 5), math.radians(-90), math.radians(-8)),
    Part.LineSegment(V(28.1, 38.3, 0), V(34.5, 82, 0)),
    Part.Circle(V(-36.9, 66.5, 0), V(0, 0, 1), 1.5),
    Part.Circle(V(-36.9, 35.5, 0), V(0, 0, 1), 1.5),
    Part.Circle(V(-15.5, 15.5, 0), V(0, 0, 1), 1.5),
    Part.Circle(V(0, 15.5, 0), V(0, 0, 1), 1.5),
    Part.Circle(V(36.9, 66.5, 0), V(0, 0, 1), 1.5),
    Part.Circle(V(36.9, 35.5, 0), V(0, 0, 1), 1.5),
    Part.Circle(V(15.5, 15.5, 0), V(0, 0, 1), 1.5),
    Part.Circle(V(-36.9, 0, 0), V(0, 0, 1), 1.5),
    Part.Circle(V(-15.5, 0, 0), V(0, 0, 1), 1.5),
    Part.Circle(V(-15.5, -15.5, 0), V(0, 0, 1), 1.5),
    Part.Circle(V(0, 0, 0), V(0, 0, 1), 1.5),
    Part.Circle(V(0, -15.5, 0), V(0, 0, 1), 1.5),
    Part.Circle(V(-36.9, -35.5, 0), V(0, 0, 1), 1.5),
    Part.Circle(V(-36.9, -66.5, 0), V(0, 0, 1), 1.5),
    Part.Circle(V(15.5, 0, 0), V(0, 0, 1), 1.5),
    Part.Circle(V(15.5, -15.5, 0), V(0, 0, 1), 1.5),
    Part.Circle(V(36.9, 0, 0), V(0, 0, 1), 1.5),
    Part.Circle(V(36.9, -35.5, 0), V(0, 0, 1), 1.5),
    Part.Circle(V(36.9, -66.5, 0), V(0, 0, 1), 1.5),
], False)
sketch5.addConstraint([
    Sketcher.Constraint("Coincident", 0, 2, 1, 1),
    Sketcher.Constraint("Coincident", 1, 2, 2, 1),
    Sketcher.Constraint("Coincident", 2, 2, 3, 1),
    Sketcher.Constraint("Tangent", 3, 2, 4, 1),
    Sketcher.Constraint("Tangent", 4, 2, 5, 1),
    Sketcher.Constraint("Tangent", 5, 2, 6, 1),
    Sketcher.Constraint("Tangent", 6, 2, 7, 1),
    Sketcher.Constraint("Coincident", 7, 2, 8, 1),
    Sketcher.Constraint("Coincident", 8, 2, 9, 1),
    Sketcher.Constraint("Coincident", 9, 2, 10, 1),
    Sketcher.Constraint("Coincident", 10, 2, 11, 1),
    Sketcher.Constraint("Tangent", 11, 2, 12, 1),
    Sketcher.Constraint("Tangent", 12, 2, 13, 1),
    Sketcher.Constraint("Tangent", 13, 2, 14, 1),
    Sketcher.Constraint("Tangent", 14, 2, 15, 1),
    Sketcher.Constraint("Coincident", 15, 2, 0, 1),
    Sketcher.Constraint("Horizontal", 0),
    Sketcher.Constraint("Vertical", 1),
    Sketcher.Constraint("Horizontal", 2),
    Sketcher.Constraint("Horizontal", 5),
    Sketcher.Constraint("Horizontal", 8),
    Sketcher.Constraint("Vertical", 9),
    Sketcher.Constraint("Horizontal", 10),
    Sketcher.Constraint("Horizontal", 13),
    Sketcher.Constraint("Coincident", 26, 3, -1, 1),
    Sketcher.Constraint("Equal", 4, 6),
    Sketcher.Constraint("Equal", 6, 12),
    Sketcher.Constraint("Equal", 12, 14),
    Sketcher.Constraint("Equal", 16, 17),
    Sketcher.Constraint("Equal", 17, 18),
    Sketcher.Constraint("Equal", 18, 19),
    Sketcher.Constraint("Equal", 19, 20),
    Sketcher.Constraint("Equal", 20, 21),
    Sketcher.Constraint("Equal", 21, 22),
    Sketcher.Constraint("Equal", 22, 23),
    Sketcher.Constraint("Equal", 23, 24),
    Sketcher.Constraint("Equal", 24, 25),
    Sketcher.Constraint("Equal", 25, 26),
    Sketcher.Constraint("Equal", 26, 27),
    Sketcher.Constraint("Equal", 27, 28),
    Sketcher.Constraint("Equal", 28, 29),
    Sketcher.Constraint("Equal", 29, 30),
    Sketcher.Constraint("Equal", 30, 31),
    Sketcher.Constraint("Equal", 31, 32),
    Sketcher.Constraint("Equal", 32, 33),
    Sketcher.Constraint("Equal", 33, 34),
    Sketcher.Constraint("Symmetric", 4, 3, 12, 3, -1, 1),
    Sketcher.Constraint("Symmetric", 22, 3, 25, 3, -1, 1),
    Sketcher.Constraint("Symmetric", 19, 3, 27, 3, -1, 1),
    Sketcher.Constraint("Symmetric", 21, 3, 28, 3, -1, 1),
    Sketcher.Constraint("Symmetric", 20, 3, 29, 3, -1, 1),
    Sketcher.Constraint("Symmetric", 24, 3, 30, 3, -1, 1),
    Sketcher.Constraint("Symmetric", 18, 3, 31, 3, -1, 1),
    Sketcher.Constraint("Symmetric", 23, 3, 32, 3, -1, 1),
    Sketcher.Constraint("Symmetric", 17, 3, 33, 3, -1, 1),
    Sketcher.Constraint("Symmetric", 16, 3, 34, 3, -1, 1),
    Sketcher.Constraint("Symmetric", 0, 2, 8, 2, -1, 1),
    Sketcher.Constraint("Symmetric", 2, 2, 10, 2, -1, 1),
    Sketcher.Constraint("Symmetric", 6, 2, 14, 2, -1, 1),
    Sketcher.Constraint("Symmetric", 16, 3, 20, 3, -2),
    Sketcher.Constraint("Symmetric", 17, 3, 21, 3, -2),
    Sketcher.Constraint("Symmetric", 18, 3, 22, 3, -2),
    Sketcher.Constraint("Symmetric", 3, 2, 6, 2, -2),
    Sketcher.Constraint("PointOnObject", 19, 3, -2),
    Sketcher.Constraint("PointOnObject", 23, 3, -1),
    Sketcher.Constraint("PointOnObject", 24, 3, -1),
    Sketcher.Constraint("Horizontal", 18, 3, 19, 3),
    Sketcher.Constraint("Horizontal", 2, 2, 7, 2),
    Sketcher.Constraint("Vertical", 16, 3, 17, 3),
    Sketcher.Constraint("Vertical", 17, 3, 23, 3),
    Sketcher.Constraint("Vertical", 18, 3, 24, 3),
    Sketcher.Constraint("Diameter", 16, Q("3 mm")),
    Sketcher.Constraint("Radius", 4, Q("5.000001 mm")),
    Sketcher.Constraint("DistanceX", 0, 1, 0, 2, Q("23 mm")),
    Sketcher.Constraint("DistanceY", 1, 2, 1, 1, Q("164 mm")),
    Sketcher.Constraint("DistanceY", 4, 3, -1, 1, Q("39.000001 mm")),
    Sketcher.Constraint("DistanceY", 17, 3, 16, 3, Q("31 mm")),
    Sketcher.Constraint("DistanceY", 18, 3, 17, 3, Q("20 mm")),
    Sketcher.Constraint("DistanceX", 18, 3, 22, 3, Q("31 mm")),
    Sketcher.Constraint("DistanceY", 25, 3, 18, 3, Q("31 mm")),
    Sketcher.Constraint("DistanceX", 22, 3, 0, 2, Q("42 mm")),
    Sketcher.Constraint("DistanceX", 16, 3, 20, 3, Q("73.7 mm")),
    Sketcher.Constraint("Distance", 3, Q("44.184009 mm")),
])
pad5 = body5.newObject("PartDesign::Pad", "Pad004")
pad5.Profile = sketch5
pad5.Type = "TwoLengths"
pad5.Length = 2.5
pad5.Length2 = 2.5
pad5.Reversed = True
doc.recompute()

fillet2 = body5.newObject("PartDesign::Fillet", "Fillet001")
fillet2.Base = (pad5, edges_at(pad5, [
    (34.5, 82, -10),
    (-34.5, 82, -10),
    (-34.5, -82, -10),
    (34.5, -82, -10),
]))
fillet2.Radius = 5
body6 = doc.addObject("PartDesign::Body", "Body005")

sketch6 = body6.newObject("Sketcher::SketchObject", "Sketch005")
sketch6.AttachmentSupport = (doc.getObject("XY_Plane005"), [""])
sketch6.MapMode = "FlatFace"
sketch6.AttachmentOffset = App.Placement(V(0, 0, -12.5), App.Rotation())
sketch6.addGeometry([
    Part.Circle(V(36.9, -66.5, 0), V(0, 0, 1), 15),
    Part.Circle(V(36.9, -66.5, 0), V(0, 0, 1), 1.5),
], False)
sketch6.addConstraint([
    Sketcher.Constraint("Coincident", 1, 3, 0, 3),
    Sketcher.Constraint("Diameter", 0, Q("30 mm")),
    Sketcher.Constraint("Diameter", 1, Q("3 mm")),
    Sketcher.Constraint("DistanceY", 0, 3, -1, 1, Q("66.5 mm")),
    Sketcher.Constraint("DistanceX", -1, 1, 0, 3, Q("36.85 mm")),
])
pad6 = body6.newObject("PartDesign::Pad", "Pad005")
pad6.Profile = sketch6
pad6.Length = 9
pad6.Reversed = True

doc.recompute()
